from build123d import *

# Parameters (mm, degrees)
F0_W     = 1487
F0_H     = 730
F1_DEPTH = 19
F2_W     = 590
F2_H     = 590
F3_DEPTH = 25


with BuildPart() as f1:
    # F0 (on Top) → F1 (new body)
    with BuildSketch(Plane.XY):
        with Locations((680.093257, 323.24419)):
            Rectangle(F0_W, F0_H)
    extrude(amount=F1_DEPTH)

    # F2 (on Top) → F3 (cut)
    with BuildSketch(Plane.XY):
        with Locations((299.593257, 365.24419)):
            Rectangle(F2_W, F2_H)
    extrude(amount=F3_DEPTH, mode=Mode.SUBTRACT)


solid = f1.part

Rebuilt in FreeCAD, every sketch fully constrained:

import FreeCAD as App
import Part
import Sketcher


def add_polygon(sketch, points):
    """Adds a closed chain of lines whose ends are joined by coincident constraints."""
    first, n = sketch.GeometryCount, len(points)
    for a, b in zip(points, points[1:] + points[:1]):
        sketch.addGeometry(Part.LineSegment(App.Vector(*a, 0), App.Vector(*b, 0)), False)
    for i in range(n):
        sketch.addConstraint(Sketcher.Constraint("Coincident", first + i, 2, first + (i + 1) % n, 1))

doc = App.newDocument("Part")
body = doc.addObject("PartDesign::Body", "Body")

sketch1 = body.newObject("Sketcher::SketchObject", "Sketch")
sketch1.AttachmentSupport = (doc.getObject("XY_Plane"), [""])
sketch1.MapMode = "FlatFace"
add_polygon(sketch1, [(-63.406743, 688.24419), (-63.406743, -41.75581), (1423.593257, -41.75581), (1423.593257, 688.24419)])
sketch1.addConstraint([
    Sketcher.Constraint("Vertical", 0),
    Sketcher.Constraint("Horizontal", 1),
    Sketcher.Constraint("Vertical", 2),
    Sketcher.Constraint("Horizontal", 3),
    Sketcher.Constraint("DistanceX", 1, 1, 1, 2, 1487.0),
    Sketcher.Constraint("DistanceY", 0, 2, 0, 1, 730.0),
    Sketcher.Constraint("DistanceY", 0, 2, -1, 1, 41.75581),
    Sketcher.Constraint("DistanceX", 0, 2, -1, 1, 63.406743),
])
pad1 = body.newObject("PartDesign::Pad", "Pad")
pad1.Profile = sketch1
pad1.Length = 19

sketch2 = body.newObject("Sketcher::SketchObject", "Sketch001")
sketch2.AttachmentSupport = (doc.getObject("XY_Plane"), [""])
sketch2.MapMode = "FlatFace"
add_polygon(sketch2, [(4.593257, 660.24419), (4.593257, 70.24419), (594.593257, 70.24419), (594.593257, 660.24419)])
sketch2.addConstraint([
    Sketcher.Constraint("Vertical", 0),
    Sketcher.Constraint("Horizontal", 1),
    Sketcher.Constraint("Vertical", 2),
    Sketcher.Constraint("Horizontal", 3),
    Sketcher.Constraint("Equal", 3, 0),
    Sketcher.Constraint("DistanceX", 1, 1, 1, 2, 590.0),
    Sketcher.Constraint("DistanceY", -1, 1, 0, 2, 70.24419),
    Sketcher.Constraint("DistanceX", -1, 1, 0, 2, 4.593257),
])
pocket1 = body.newObject("PartDesign::Pocket", "Pocket")
pocket1.Profile = sketch2
pocket1.Length = 25
pocket1.Reversed = True

doc.recompute()
